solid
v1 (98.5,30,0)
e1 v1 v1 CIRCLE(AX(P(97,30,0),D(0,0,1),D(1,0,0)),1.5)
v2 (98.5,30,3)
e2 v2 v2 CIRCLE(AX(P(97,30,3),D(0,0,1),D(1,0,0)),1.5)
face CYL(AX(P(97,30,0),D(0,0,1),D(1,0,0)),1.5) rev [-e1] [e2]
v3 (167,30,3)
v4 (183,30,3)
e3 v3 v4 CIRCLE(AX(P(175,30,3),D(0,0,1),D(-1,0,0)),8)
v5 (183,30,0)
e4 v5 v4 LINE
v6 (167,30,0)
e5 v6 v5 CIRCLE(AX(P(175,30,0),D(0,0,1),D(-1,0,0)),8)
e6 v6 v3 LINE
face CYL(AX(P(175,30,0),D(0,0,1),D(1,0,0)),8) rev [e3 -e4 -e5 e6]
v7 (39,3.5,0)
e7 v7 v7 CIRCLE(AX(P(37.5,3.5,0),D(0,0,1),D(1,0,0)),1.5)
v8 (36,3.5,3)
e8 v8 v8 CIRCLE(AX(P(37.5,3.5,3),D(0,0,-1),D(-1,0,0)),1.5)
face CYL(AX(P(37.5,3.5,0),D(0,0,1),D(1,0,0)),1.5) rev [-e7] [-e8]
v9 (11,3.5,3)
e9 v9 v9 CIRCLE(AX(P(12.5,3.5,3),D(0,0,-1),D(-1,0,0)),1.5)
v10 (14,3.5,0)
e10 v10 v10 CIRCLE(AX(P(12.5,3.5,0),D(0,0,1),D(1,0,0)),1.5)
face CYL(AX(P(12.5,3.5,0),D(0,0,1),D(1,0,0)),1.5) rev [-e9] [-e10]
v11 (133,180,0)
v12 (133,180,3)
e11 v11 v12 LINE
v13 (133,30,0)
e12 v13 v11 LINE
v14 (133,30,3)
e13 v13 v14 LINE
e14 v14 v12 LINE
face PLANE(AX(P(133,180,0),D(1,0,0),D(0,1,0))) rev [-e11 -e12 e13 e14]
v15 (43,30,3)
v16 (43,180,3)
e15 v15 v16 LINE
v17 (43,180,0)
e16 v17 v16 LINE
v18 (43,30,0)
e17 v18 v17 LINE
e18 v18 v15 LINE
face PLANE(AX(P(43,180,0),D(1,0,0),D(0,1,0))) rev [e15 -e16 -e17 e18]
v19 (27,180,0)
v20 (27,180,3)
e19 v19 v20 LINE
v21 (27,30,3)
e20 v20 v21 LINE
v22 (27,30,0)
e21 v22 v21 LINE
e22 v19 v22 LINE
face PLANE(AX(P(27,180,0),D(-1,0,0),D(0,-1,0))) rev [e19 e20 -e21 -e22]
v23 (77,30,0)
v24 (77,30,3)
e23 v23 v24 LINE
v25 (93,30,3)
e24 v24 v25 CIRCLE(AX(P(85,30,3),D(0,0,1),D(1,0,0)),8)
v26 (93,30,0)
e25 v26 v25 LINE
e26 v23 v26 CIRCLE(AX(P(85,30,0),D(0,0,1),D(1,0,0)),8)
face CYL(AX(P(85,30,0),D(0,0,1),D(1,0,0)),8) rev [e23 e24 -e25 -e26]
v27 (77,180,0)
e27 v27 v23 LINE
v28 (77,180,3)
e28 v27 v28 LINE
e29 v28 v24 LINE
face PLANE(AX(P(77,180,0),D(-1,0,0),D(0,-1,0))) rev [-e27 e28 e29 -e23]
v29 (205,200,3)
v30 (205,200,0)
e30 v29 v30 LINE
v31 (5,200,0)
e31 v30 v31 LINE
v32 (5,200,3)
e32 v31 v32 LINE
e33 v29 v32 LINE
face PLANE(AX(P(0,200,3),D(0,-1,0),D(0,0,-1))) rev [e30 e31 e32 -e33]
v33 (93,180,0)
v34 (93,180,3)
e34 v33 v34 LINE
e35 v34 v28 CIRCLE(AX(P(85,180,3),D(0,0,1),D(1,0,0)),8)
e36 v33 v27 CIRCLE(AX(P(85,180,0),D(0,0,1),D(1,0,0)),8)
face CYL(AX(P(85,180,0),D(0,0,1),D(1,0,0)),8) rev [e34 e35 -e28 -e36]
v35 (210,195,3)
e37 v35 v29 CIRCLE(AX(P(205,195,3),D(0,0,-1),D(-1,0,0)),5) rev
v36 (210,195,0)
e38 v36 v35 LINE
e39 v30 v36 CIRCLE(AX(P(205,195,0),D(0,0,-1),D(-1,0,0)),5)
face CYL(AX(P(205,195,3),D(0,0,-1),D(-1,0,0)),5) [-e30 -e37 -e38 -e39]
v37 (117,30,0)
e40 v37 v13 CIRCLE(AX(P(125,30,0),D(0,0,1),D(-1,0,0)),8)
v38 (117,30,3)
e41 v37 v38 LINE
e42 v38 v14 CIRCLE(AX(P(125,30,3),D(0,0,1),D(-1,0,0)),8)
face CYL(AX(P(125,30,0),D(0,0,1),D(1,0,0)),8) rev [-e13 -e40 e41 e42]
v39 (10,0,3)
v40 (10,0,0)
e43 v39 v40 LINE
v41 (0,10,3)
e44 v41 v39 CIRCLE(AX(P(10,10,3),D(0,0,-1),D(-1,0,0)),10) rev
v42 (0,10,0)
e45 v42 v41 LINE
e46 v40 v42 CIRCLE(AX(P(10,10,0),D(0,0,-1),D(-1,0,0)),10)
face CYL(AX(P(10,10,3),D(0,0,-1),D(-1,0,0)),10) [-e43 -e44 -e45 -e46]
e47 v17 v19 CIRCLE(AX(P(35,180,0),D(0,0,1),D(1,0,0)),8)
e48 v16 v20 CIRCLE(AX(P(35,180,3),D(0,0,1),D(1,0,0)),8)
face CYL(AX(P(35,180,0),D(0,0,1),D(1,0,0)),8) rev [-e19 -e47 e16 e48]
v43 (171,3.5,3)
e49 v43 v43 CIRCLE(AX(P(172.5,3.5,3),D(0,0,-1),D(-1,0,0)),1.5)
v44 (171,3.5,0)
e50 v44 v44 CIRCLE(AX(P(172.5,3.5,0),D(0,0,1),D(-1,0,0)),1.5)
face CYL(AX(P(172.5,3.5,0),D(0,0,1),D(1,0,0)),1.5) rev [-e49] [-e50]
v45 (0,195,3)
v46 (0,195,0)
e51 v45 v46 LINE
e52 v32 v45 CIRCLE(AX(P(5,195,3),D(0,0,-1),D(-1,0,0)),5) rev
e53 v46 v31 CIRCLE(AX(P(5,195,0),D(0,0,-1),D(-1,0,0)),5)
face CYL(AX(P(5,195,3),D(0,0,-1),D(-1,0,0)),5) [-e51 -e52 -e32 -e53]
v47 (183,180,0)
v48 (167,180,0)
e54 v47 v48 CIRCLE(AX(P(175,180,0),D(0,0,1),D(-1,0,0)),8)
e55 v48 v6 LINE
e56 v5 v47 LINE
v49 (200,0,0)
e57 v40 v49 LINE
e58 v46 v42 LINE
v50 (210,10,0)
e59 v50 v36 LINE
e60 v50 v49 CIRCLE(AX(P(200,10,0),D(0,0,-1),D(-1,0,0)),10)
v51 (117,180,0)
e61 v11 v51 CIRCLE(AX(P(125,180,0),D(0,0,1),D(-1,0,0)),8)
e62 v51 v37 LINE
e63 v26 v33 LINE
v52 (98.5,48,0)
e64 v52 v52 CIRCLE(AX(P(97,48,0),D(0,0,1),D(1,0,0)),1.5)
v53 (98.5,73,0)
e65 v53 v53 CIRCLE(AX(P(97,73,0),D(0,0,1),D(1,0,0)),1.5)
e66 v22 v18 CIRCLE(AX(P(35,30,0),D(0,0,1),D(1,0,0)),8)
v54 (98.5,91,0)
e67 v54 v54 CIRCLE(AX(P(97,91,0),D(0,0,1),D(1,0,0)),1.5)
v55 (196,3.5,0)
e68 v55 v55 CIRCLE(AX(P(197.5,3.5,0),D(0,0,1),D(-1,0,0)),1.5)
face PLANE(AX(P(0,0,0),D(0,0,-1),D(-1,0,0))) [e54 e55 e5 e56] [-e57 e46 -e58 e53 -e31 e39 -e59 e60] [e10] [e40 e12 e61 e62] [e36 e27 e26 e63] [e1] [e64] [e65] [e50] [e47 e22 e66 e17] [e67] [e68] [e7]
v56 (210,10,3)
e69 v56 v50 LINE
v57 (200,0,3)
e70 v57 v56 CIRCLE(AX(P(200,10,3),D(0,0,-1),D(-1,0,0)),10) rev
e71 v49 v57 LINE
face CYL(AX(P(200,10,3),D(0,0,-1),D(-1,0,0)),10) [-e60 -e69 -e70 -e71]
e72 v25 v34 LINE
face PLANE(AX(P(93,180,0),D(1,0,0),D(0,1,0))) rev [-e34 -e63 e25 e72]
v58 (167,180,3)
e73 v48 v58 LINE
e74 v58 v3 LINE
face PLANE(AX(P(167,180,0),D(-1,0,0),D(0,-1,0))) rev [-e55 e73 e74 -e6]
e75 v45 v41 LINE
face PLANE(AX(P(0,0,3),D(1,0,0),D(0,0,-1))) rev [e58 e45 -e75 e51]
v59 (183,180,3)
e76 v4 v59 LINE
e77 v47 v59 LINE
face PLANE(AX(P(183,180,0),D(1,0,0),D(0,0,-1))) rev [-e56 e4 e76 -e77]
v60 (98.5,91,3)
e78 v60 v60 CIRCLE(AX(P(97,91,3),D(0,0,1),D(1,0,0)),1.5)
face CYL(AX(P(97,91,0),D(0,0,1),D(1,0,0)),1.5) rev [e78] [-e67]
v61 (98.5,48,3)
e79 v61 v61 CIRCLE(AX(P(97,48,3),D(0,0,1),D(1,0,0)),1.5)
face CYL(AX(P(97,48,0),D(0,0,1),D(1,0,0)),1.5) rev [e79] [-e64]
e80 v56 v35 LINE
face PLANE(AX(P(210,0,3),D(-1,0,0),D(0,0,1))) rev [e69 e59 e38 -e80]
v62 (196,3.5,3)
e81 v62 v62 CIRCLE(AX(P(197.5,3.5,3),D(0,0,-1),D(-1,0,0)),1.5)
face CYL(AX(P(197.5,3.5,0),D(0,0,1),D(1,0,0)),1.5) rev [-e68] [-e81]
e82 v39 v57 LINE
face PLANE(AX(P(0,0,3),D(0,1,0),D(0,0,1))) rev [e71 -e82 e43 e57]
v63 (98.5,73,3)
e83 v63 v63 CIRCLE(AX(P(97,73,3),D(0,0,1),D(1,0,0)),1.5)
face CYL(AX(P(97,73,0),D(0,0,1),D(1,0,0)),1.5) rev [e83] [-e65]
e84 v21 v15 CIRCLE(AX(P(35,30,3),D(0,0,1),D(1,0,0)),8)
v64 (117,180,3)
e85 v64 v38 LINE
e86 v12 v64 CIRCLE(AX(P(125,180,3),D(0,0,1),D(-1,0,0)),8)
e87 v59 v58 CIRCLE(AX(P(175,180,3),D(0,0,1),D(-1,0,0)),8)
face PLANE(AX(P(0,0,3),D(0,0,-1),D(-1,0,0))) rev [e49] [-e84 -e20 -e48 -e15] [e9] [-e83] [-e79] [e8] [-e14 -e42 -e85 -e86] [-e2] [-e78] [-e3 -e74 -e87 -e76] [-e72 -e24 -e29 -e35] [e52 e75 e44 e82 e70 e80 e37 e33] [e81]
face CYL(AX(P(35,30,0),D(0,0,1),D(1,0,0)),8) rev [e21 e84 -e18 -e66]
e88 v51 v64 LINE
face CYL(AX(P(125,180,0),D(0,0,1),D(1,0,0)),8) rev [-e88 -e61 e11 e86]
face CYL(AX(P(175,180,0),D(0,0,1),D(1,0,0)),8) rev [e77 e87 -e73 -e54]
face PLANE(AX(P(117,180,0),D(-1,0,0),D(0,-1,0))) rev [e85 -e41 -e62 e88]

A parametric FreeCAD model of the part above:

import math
import FreeCAD as App
import Part
import Sketcher
from FreeCAD import Vector


def edges_at(feature, points):
    """Names of the edges that pass closest to the given points."""
    edges = feature.Shape.Edges
    near = lambda p: min(range(len(edges)), key=lambda i: edges[i].distToShape(Part.Vertex(*p))[0])
    return sorted({f"Edge{near(p) + 1}" for p in points})


def add_polygon(sketch, points):
    """Adds a closed chain of lines whose ends are joined by coincident constraints."""
    first, n = sketch.GeometryCount, len(points)
    for a, b in zip(points, points[1:] + points[:1]):
        sketch.addGeometry(Part.LineSegment(App.Vector(*a, 0), App.Vector(*b, 0)), False)
    for i in range(n):
        sketch.addConstraint(Sketcher.Constraint("Coincident", first + i, 2, first + (i + 1) % n, 1))

doc = App.newDocument("Part")
params = doc.addObject("Spreadsheet::Sheet", "Params")
for row, (alias, value) in enumerate([
    ("sketch1_width", "210 mm"),
    ("sketch1_height", "200 mm"),
    ("pad1_length", "3 mm"),
    ("sketch2_radius", "8 mm"),
    ("sketch2_height", "150 mm"),
    ("fillet_radius", "10 mm"),
    ("fillet2_radius", "5 mm"),
    ("sketch3_diameter", "3 mm"),
    ("sketch4_diameter", "3 mm"),
], start=1):
    params.set(f"A{row}", alias)
    params.set(f"B{row}", "=" + value)
    params.setAlias(f"B{row}", alias)

body = doc.addObject("PartDesign::Body", "Body")

sketch1 = body.newObject("Sketcher::SketchObject", "Sketch")
sketch1.AttachmentSupport = (doc.getObject("XY_Plane"), [""])
sketch1.MapMode = "FlatFace"
add_polygon(sketch1, [(0, 200), (0, 0), (210, 0), (210, 200)])
sketch1.addConstraint(Sketcher.Constraint("Vertical", 0))
sketch1.addConstraint(Sketcher.Constraint("Horizontal", 1))
sketch1.addConstraint(Sketcher.Constraint("Vertical", 2))
sketch1.addConstraint(Sketcher.Constraint("Horizontal", 3))
sketch1.addConstraint(Sketcher.Constraint("Coincident", 0, 2, -1, 1))
sketch1.addConstraint(Sketcher.Constraint("DistanceX", 1, 1, 1, 2, 210.0))
sketch1.addConstraint(Sketcher.Constraint("DistanceY", 0, 2, 0, 1, 200.0))
sketch1.setExpression("Constraints[9]", "Params.sketch1_width")
sketch1.setExpression("Constraints[10]", "Params.sketch1_height")
pad1 = body.newObject("PartDesign::Pad", "Pad")
pad1.Profile = sketch1
pad1.setExpression("Length", "Params.pad1_length")

sketch2 = body.newObject("Sketcher::SketchObject", "Sketch001")
sketch2.AttachmentSupport = (doc.getObject("XY_Plane"), [""])
sketch2.MapMode = "FlatFace"
sketch2.AttachmentOffset = App.Placement(Vector(0, 0, 3), App.Rotation())
sketch2.addGeometry(Part.LineSegment(Vector(43, 30, 0), Vector(43, 180, 0)), False)
sketch2.addGeometry(Part.ArcOfCircle(Part.Circle(Vector(35, 180, 0), Vector(0, 0, 1), 8), math.radians(0), math.radians(180)), False)
sketch2.addGeometry(Part.LineSegment(Vector(27, 180, 0), Vector(27, 30, 0)), False)
sketch2.addGeometry(Part.ArcOfCircle(Part.Circle(Vector(35, 30, 0), Vector(0, 0, 1), 8), math.radians(180), math.radians(360)), False)
sketch2.addGeometry(Part.LineSegment(Vector(167, 180, 0), Vector(167, 30, 0)), False)
sketch2.addGeometry(Part.ArcOfCircle(Part.Circle(Vector(175, 30, 0), Vector(0, 0, 1), 8), math.radians(180), math.radians(360)), False)
sketch2.addGeometry(Part.LineSegment(Vector(183, 30, 0), Vector(183, 180, 0)), False)
sketch2.addGeometry(Part.ArcOfCircle(Part.Circle(Vector(175, 180, 0), Vector(0, 0, 1), 8), math.radians(0), math.radians(180)), False)
sketch2.addGeometry(Part.LineSegment(Vector(93, 30, 0), Vector(93, 180, 0)), False)
sketch2.addGeometry(Part.ArcOfCircle(Part.Circle(Vector(85, 180, 0), Vector(0, 0, 1), 8), math.radians(0), math.radians(180)), False)
sketch2.addGeometry(Part.LineSegment(Vector(77, 180, 0), Vector(77, 30, 0)), False)
sketch2.addGeometry(Part.ArcOfCircle(Part.Circle(Vector(85, 30, 0), Vector(0, 0, 1), 8), math.radians(180), math.radians(360)), False)
sketch2.addGeometry(Part.LineSegment(Vector(117, 180, 0), Vector(117, 30, 0)), False)
sketch2.addGeometry(Part.ArcOfCircle(Part.Circle(Vector(125, 30, 0), Vector(0, 0, 1), 8), math.radians(180), math.radians(360)), False)
sketch2.addGeometry(Part.LineSegment(Vector(133, 30, 0), Vector(133, 180, 0)), False)
sketch2.addGeometry(Part.ArcOfCircle(Part.Circle(Vector(125, 180, 0), Vector(0, 0, 1), 8), math.radians(0), math.radians(180)), False)
sketch2.addConstraint(Sketcher.Constraint("Tangent", 0, 2, 1, 1))
sketch2.addConstraint(Sketcher.Constraint("Tangent", 1, 2, 2, 1))
sketch2.addConstraint(Sketcher.Constraint("Tangent", 2, 2, 3, 1))
sketch2.addConstraint(Sketcher.Constraint("Tangent", 3, 2, 0, 1))
sketch2.addConstraint(Sketcher.Constraint("Tangent", 4, 2, 5, 1))
sketch2.addConstraint(Sketcher.Constraint("Tangent", 5, 2, 6, 1))
sketch2.addConstraint(Sketcher.Constraint("Tangent", 6, 2, 7, 1))
sketch2.addConstraint(Sketcher.Constraint("Tangent", 7, 2, 4, 1))
sketch2.addConstraint(Sketcher.Constraint("Tangent", 8, 2, 9, 1))
sketch2.addConstraint(Sketcher.Constraint("Tangent", 9, 2, 10, 1))
sketch2.addConstraint(Sketcher.Constraint("Tangent", 10, 2, 11, 1))
sketch2.addConstraint(Sketcher.Constraint("Tangent", 11, 2, 8, 1))
sketch2.addConstraint(Sketcher.Constraint("Tangent", 12, 2, 13, 1))
sketch2.addConstraint(Sketcher.Constraint("Tangent", 13, 2, 14, 1))
sketch2.addConstraint(Sketcher.Constraint("Tangent", 14, 2, 15, 1))
sketch2.addConstraint(Sketcher.Constraint("Tangent", 15, 2, 12, 1))
sketch2.addConstraint(Sketcher.Constraint("Vertical", 0))
sketch2.addConstraint(Sketcher.Constraint("Vertical", 2))
sketch2.addConstraint(Sketcher.Constraint("Vertical", 4))
sketch2.addConstraint(Sketcher.Constraint("Vertical", 6))
sketch2.addConstraint(Sketcher.Constraint("Vertical", 8))
sketch2.addConstraint(Sketcher.Constraint("Vertical", 10))
sketch2.addConstraint(Sketcher.Constraint("Vertical", 12))
sketch2.addConstraint(Sketcher.Constraint("Vertical", 14))
sketch2.addConstraint(Sketcher.Constraint("Equal", 3, 5))
sketch2.addConstraint(Sketcher.Constraint("Equal", 7, 9))
sketch2.addConstraint(Sketcher.Constraint("Equal", 11, 13))
sketch2.addConstraint(Sketcher.Constraint("Horizontal", 3, 3, 5, 3))
sketch2.addConstraint(Sketcher.Constraint("Horizontal", 1, 3, 7, 3))
sketch2.addConstraint(Sketcher.Constraint("Horizontal", 7, 3, 9, 3))
sketch2.addConstraint(Sketcher.Constraint("Horizontal", 5, 3, 11, 3))
sketch2.addConstraint(Sketcher.Constraint("Horizontal", 11, 3, 13, 3))
sketch2.addConstraint(Sketcher.Constraint("Horizontal", 9, 3, 15, 3))
sketch2.addConstraint(Sketcher.Constraint("Radius", 1, 8.0))
sketch2.addConstraint(Sketcher.Constraint("DistanceY", 0, 1, 0, 2, 150.0))
sketch2.addConstraint(Sketcher.Constraint("DistanceX", -1, 1, 1, 3, 35.0))
sketch2.addConstraint(Sketcher.Constraint("DistanceY", -1, 1, 1, 3, 180.0))
sketch2.addConstraint(Sketcher.Constraint("DistanceX", -1, 1, 5, 3, 175.0))
sketch2.addConstraint(Sketcher.Constraint("DistanceX", -1, 1, 9, 3, 85.0))
sketch2.addConstraint(Sketcher.Constraint("DistanceX", -1, 1, 13, 3, 125.0))
sketch2.setExpression("Constraints[33]", "Params.sketch2_radius")
sketch2.setExpression("Constraints[34]", "Params.sketch2_height")
pocket1 = body.newObject("PartDesign::Pocket", "Pocket")
pocket1.Profile = sketch2
pocket1.Type = "ThroughAll"
doc.recompute()

fillet = body.newObject("PartDesign::Fillet", "Fillet")
fillet.Base = (pocket1, edges_at(pocket1, [(210, 0, 1.5), (0, 0, 1.5)]))
fillet.setExpression("Radius", "Params.fillet_radius")
doc.recompute()

fillet2 = body.newObject("PartDesign::Fillet", "Fillet001")
fillet2.Base = (fillet, edges_at(fillet, [(0, 200, 1.5), (210, 200, 1.5)]))
fillet2.setExpression("Radius", "Params.fillet2_radius")

sketch3 = body.newObject("Sketcher::SketchObject", "Sketch002")
sketch3.AttachmentSupport = (doc.getObject("XY_Plane"), [""])
sketch3.MapMode = "FlatFace"
sketch3.AttachmentOffset = App.Placement(Vector(0, 0, 3), App.Rotation())
sketch3.addGeometry(Part.Circle(Vector(12.5, 3.5, 0), Vector(0, 0, 1), 1.5), False)
sketch3.addGeometry(Part.Circle(Vector(37.5, 3.5, 0), Vector(0, 0, 1), 1.5), False)
sketch3.addGeometry(Part.Circle(Vector(172.5, 3.5, 0), Vector(0, 0, 1), 1.5), False)
sketch3.addGeometry(Part.Circle(Vector(197.5, 3.5, 0), Vector(0, 0, 1), 1.5), False)
sketch3.addConstraint(Sketcher.Constraint("Equal", 0, 1))
sketch3.addConstraint(Sketcher.Constraint("Equal", 1, 2))
sketch3.addConstraint(Sketcher.Constraint("Equal", 2, 3))
sketch3.addConstraint(Sketcher.Constraint("Horizontal", 0, 3, 1, 3))
sketch3.addConstraint(Sketcher.Constraint("Horizontal", 1, 3, 2, 3))
sketch3.addConstraint(Sketcher.Constraint("Horizontal", 2, 3, 3, 3))
sketch3.addConstraint(Sketcher.Constraint("Diameter", 0, 3.0))
sketch3.addConstraint(Sketcher.Constraint("DistanceX", 0, 3, 1, 3, 25.0))
sketch3.addConstraint(Sketcher.Constraint("DistanceX", 1, 3, 2, 3, 135.0))
sketch3.addConstraint(Sketcher.Constraint("DistanceX", 2, 3, 3, 3, 25.0))
sketch3.addConstraint(Sketcher.Constraint("DistanceX", -1, 1, 0, 3, 12.5))
sketch3.addConstraint(Sketcher.Constraint("DistanceY", -1, 1, 0, 3, 3.5))
sketch3.setExpression("Constraints[6]", "Params.sketch3_diameter")
pocket2 = body.newObject("PartDesign::Pocket", "Pocket001")
pocket2.Profile = sketch3
pocket2.Type = "ThroughAll"
pocket2.Midplane = True

sketch4 = body.newObject("Sketcher::SketchObject", "Sketch003")
sketch4.AttachmentSupport = (doc.getObject("XY_Plane"), [""])
sketch4.MapMode = "FlatFace"
sketch4.AttachmentOffset = App.Placement(Vector(0, 0, 3), App.Rotation())
sketch4.addGeometry(Part.Circle(Vector(97, 48, 0), Vector(0, 0, 1), 1.5), False)
sketch4.addGeometry(Part.Circle(Vector(97, 30, 0), Vector(0, 0, 1), 1.5), False)
sketch4.addGeometry(Part.Circle(Vector(97, 73, 0), Vector(0, 0, 1), 1.5), False)
sketch4.addGeometry(Part.Circle(Vector(97, 91, 0), Vector(0, 0, 1), 1.5), False)
sketch4.addConstraint(Sketcher.Constraint("Equal", 0, 1))
sketch4.addConstraint(Sketcher.Constraint("Equal", 1, 2))
sketch4.addConstraint(Sketcher.Constraint("Equal", 2, 3))
sketch4.addConstraint(Sketcher.Constraint("Vertical", 0, 3, 1, 3))
sketch4.addConstraint(Sketcher.Constraint("Vertical", 1, 3, 2, 3))
sketch4.addConstraint(Sketcher.Constraint("Vertical", 2, 3, 3, 3))
sketch4.addConstraint(Sketcher.Constraint("Diameter", 0, 3.0))
sketch4.addConstraint(Sketcher.Constraint("DistanceX", -1, 1, 0, 3, 97.0))
sketch4.addConstraint(Sketcher.Constraint("DistanceY", -1, 1, 0, 3, 48.0))
sketch4.addConstraint(Sketcher.Constraint("DistanceY", -1, 1, 1, 3, 30.0))
sketch4.addConstraint(Sketcher.Constraint("DistanceY", -1, 1, 2, 3, 73.0))
sketch4.addConstraint(Sketcher.Constraint("DistanceY", -1, 1, 3, 3, 91.0))
sketch4.setExpression("Constraints[6]", "Params.sketch4_diameter")
pocket3 = body.newObject("PartDesign::Pocket", "Pocket002")
pocket3.Profile = sketch4
pocket3.Type = "ThroughAll"

doc.recompute()
